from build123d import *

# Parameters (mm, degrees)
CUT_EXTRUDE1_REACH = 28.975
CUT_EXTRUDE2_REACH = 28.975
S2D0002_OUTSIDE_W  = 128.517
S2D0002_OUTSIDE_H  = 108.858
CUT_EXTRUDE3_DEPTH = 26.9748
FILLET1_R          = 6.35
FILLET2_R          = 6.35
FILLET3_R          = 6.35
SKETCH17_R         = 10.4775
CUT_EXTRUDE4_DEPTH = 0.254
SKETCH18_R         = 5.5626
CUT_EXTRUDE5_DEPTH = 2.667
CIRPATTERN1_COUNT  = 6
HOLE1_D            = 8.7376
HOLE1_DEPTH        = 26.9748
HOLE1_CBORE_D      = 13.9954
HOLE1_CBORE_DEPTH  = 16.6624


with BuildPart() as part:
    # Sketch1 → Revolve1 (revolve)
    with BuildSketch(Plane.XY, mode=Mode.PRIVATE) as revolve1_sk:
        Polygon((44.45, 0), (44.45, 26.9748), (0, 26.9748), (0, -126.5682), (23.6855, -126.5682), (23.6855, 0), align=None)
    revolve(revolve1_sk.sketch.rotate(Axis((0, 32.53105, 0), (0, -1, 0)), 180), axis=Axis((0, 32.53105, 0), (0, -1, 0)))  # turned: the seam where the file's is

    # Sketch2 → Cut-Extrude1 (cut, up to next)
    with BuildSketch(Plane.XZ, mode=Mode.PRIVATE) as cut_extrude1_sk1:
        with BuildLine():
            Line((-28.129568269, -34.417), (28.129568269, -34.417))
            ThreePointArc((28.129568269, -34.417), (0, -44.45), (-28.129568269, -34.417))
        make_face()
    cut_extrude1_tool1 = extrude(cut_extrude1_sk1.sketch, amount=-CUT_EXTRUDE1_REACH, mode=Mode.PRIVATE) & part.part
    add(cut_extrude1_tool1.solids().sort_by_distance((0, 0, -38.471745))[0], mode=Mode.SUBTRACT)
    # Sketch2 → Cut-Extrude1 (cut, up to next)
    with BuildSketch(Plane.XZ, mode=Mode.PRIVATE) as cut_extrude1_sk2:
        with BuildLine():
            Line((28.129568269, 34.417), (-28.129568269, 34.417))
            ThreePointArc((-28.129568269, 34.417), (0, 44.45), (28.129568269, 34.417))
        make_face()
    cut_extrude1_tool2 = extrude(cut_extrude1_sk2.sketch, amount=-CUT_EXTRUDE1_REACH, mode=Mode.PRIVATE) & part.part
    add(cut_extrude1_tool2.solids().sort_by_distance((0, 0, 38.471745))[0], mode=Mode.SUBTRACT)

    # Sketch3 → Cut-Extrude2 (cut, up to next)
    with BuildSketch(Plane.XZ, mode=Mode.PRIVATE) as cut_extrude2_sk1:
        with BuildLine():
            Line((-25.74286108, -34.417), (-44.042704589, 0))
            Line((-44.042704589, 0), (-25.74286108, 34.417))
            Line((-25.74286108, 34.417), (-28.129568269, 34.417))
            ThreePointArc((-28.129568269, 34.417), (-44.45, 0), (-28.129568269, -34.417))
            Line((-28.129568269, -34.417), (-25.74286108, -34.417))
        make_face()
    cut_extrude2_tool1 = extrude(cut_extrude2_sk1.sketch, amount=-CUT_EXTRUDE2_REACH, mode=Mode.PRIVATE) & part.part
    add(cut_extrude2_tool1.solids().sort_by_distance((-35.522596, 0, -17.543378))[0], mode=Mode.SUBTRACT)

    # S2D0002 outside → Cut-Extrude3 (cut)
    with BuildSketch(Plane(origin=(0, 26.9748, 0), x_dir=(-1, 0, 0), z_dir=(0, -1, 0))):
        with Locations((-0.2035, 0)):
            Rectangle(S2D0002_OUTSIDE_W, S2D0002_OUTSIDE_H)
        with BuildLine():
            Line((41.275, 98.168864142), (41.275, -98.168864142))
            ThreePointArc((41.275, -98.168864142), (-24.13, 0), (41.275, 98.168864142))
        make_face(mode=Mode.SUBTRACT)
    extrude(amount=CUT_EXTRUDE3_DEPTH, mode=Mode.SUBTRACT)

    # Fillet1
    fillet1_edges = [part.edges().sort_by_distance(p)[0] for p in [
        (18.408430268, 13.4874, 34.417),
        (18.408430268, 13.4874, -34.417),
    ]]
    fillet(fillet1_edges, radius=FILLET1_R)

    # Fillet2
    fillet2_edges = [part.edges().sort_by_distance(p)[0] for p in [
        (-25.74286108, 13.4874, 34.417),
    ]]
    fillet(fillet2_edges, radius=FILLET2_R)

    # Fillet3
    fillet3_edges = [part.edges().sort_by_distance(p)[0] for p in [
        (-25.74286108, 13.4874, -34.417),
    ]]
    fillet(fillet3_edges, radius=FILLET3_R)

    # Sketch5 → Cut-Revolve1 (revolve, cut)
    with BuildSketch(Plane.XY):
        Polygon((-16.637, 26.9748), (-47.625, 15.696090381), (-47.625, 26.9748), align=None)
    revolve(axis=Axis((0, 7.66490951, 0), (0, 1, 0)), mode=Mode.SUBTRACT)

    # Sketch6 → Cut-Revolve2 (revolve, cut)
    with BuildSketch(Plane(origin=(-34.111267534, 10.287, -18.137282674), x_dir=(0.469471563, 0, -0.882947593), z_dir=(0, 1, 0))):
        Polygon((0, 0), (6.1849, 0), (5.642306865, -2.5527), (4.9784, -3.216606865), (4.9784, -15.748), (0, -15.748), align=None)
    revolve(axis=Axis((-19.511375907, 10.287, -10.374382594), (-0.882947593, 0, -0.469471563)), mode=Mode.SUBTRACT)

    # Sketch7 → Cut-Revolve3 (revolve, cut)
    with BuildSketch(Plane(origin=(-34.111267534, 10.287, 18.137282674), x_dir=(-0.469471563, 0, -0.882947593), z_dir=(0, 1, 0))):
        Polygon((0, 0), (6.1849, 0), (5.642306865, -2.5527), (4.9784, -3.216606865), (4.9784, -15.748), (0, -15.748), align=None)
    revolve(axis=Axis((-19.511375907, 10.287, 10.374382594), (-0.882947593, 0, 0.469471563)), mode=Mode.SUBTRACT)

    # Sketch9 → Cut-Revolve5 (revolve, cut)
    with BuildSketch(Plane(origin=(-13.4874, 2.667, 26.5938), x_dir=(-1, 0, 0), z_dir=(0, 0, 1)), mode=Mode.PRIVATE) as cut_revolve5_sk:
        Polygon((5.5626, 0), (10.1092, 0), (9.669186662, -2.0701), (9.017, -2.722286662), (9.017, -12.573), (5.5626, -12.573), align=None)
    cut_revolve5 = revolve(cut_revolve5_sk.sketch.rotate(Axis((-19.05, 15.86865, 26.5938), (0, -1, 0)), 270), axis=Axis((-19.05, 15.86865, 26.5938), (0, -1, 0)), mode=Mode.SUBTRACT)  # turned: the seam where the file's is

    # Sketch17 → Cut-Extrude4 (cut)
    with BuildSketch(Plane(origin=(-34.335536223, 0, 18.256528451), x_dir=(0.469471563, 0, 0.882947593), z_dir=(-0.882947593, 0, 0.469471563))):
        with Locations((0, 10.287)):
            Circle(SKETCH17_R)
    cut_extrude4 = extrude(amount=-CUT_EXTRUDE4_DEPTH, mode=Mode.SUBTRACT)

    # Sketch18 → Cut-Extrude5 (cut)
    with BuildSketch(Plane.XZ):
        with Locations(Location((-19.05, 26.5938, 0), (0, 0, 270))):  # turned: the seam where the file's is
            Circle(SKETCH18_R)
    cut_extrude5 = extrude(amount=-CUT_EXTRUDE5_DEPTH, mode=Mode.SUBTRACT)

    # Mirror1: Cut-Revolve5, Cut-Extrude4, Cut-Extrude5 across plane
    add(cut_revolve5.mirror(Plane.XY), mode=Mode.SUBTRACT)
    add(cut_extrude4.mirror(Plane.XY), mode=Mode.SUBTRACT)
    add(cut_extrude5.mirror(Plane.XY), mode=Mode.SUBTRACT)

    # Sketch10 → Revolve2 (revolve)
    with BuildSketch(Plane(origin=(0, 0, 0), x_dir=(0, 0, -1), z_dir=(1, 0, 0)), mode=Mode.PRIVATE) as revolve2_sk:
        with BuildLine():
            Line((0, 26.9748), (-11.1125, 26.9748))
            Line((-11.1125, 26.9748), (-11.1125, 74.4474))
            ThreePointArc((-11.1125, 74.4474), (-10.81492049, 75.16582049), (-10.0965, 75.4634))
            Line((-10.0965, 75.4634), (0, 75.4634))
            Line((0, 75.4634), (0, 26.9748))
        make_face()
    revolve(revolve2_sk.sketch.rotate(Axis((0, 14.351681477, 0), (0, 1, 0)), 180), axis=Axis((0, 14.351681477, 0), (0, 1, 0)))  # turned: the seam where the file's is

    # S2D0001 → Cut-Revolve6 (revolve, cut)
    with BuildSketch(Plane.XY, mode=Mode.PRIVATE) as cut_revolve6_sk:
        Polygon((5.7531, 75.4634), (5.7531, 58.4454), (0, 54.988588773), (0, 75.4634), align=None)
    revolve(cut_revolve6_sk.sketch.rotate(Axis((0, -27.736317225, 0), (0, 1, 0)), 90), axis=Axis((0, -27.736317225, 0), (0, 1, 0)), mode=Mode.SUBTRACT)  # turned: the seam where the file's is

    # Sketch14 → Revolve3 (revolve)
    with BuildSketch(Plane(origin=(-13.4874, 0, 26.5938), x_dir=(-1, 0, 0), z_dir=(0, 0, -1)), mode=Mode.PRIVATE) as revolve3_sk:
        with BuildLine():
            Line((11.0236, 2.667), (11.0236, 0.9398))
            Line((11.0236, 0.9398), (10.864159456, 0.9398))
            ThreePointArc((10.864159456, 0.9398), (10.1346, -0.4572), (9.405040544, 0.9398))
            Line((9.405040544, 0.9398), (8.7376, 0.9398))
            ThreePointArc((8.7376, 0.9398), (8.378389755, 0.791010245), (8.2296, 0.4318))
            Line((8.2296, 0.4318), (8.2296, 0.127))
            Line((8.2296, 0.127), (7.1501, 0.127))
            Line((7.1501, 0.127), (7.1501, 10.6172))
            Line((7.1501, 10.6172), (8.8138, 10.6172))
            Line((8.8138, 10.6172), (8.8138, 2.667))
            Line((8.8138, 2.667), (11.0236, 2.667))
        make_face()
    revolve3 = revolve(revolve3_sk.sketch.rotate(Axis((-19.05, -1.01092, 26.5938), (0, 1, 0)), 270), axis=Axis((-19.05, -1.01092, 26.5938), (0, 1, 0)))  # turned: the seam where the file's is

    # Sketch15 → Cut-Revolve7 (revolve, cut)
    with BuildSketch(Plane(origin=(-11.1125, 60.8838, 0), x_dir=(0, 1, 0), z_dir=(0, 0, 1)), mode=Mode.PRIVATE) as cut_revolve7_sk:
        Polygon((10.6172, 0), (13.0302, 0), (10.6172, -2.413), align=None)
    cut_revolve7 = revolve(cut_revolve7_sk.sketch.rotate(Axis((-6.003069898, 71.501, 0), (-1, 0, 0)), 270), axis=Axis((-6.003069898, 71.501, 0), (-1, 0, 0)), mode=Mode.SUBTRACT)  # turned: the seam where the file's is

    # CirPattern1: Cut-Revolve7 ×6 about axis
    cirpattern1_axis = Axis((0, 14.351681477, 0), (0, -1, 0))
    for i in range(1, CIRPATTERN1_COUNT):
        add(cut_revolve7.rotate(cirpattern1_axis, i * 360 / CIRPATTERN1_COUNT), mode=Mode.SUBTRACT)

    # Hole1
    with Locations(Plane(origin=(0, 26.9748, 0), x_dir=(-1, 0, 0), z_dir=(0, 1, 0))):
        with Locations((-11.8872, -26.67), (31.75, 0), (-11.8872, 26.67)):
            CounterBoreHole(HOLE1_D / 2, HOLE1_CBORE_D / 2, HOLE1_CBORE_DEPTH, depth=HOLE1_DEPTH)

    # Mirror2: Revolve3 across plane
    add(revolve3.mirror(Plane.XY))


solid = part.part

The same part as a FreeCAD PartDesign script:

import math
import FreeCAD as App
import Part
import Sketcher
Q = App.Units.Quantity


def edges_at(feature, points):
    """Names of the edges that pass closest to the given points."""
    edges = feature.Shape.Edges
    near = lambda p: min(range(len(edges)), key=lambda i: edges[i].distToShape(Part.Vertex(*p))[0])
    return sorted({f"Edge{near(p) + 1}" for p in points})


def add_polygon(sketch, points):
    """Adds a closed chain of lines whose ends are joined by coincident constraints."""
    first, n = sketch.GeometryCount, len(points)
    for a, b in zip(points, points[1:] + points[:1]):
        sketch.addGeometry(Part.LineSegment(App.Vector(*a, 0), App.Vector(*b, 0)), False)
    for i in range(n):
        sketch.addConstraint(Sketcher.Constraint("Coincident", first + i, 2, first + (i + 1) % n, 1))

doc = App.newDocument("Part")
body = doc.addObject("PartDesign::Body", "Body")

# Sketch on XY plane
sketch1 = body.newObject("Sketcher::SketchObject", "Sketch")
sketch1.AttachmentSupport = (doc.getObject("XY_Plane"), [""])
sketch1.MapMode = "FlatFace"
add_polygon(sketch1, [(44, 0), (44, 27), (0, 27), (0, -127), (24, -127), (24, 0)])  # lines 0-5
sketch1.addConstraint([
    Sketcher.Constraint("Vertical", 0),
    Sketcher.Constraint("Horizontal", 1),
    Sketcher.Constraint("Vertical", 2),
    Sketcher.Constraint("Horizontal", 3),
    Sketcher.Constraint("Vertical", 4),
    Sketcher.Constraint("Horizontal", 5),
    Sketcher.Constraint("PointOnObject", 1, 2, -2),
    Sketcher.Constraint("PointOnObject", 4, 2, -1),
    Sketcher.Constraint("DistanceX", 1, 2, 1, 1, Q("1.75 in")),
    Sketcher.Constraint("DistanceY", 0, 1, 0, 2, Q("1.062 in")),
    Sketcher.Constraint("DistanceY", 2, 2, 2, 1, Q("6.045 in")),
    Sketcher.Constraint("DistanceX", 3, 1, 3, 2, Q("0.9325 in")),
])
revolution = body.newObject("PartDesign::Revolution", "Revolution")
revolution.Profile = sketch1
revolution.ReferenceAxis = (sketch1, ["V_Axis"])
revolution.Angle = 360

# Sketch on XZ plane
sketch2 = body.newObject("Sketcher::SketchObject", "Sketch001")
sketch2.AttachmentSupport = (doc.getObject("XZ_Plane"), [""])
sketch2.MapMode = "FlatFace"
sketch2.addGeometry([
    Part.LineSegment(App.Vector(28, -34, 0), App.Vector(-28, -34, 0)),
    Part.ArcOfCircle(Part.Circle(App.Vector(0, 0, 0), App.Vector(0, 0, 1), 44), math.radians(-129), math.radians(-51)),
], False)
sketch2.addConstraint([
    Sketcher.Constraint("Coincident", 0, 1, 1, 2),
    Sketcher.Constraint("Coincident", 1, 1, 0, 2),
    Sketcher.Constraint("Horizontal", 0),
    Sketcher.Constraint("Coincident", 1, 3, -1, 1),
    Sketcher.Constraint("Radius", 1, Q("1.75 in")),
    Sketcher.Constraint("DistanceY", 0, 1, -1, 1, Q("1.355 in")),
])
pocket1 = body.newObject("PartDesign::Pocket", "Pocket")
pocket1.Profile = sketch2
pocket1.Type = "UpToFirst"

# Sketch on XZ plane
sketch3 = body.newObject("Sketcher::SketchObject", "Sketch002")
sketch3.AttachmentSupport = (doc.getObject("XZ_Plane"), [""])
sketch3.MapMode = "FlatFace"
sketch3.addGeometry([
    Part.LineSegment(App.Vector(-28, 34, 0), App.Vector(28, 34, 0)),
    Part.ArcOfCircle(Part.Circle(App.Vector(0, 0, 0), App.Vector(0, 0, 1), 44), math.radians(51), math.radians(129)),
], False)
sketch3.addConstraint([
    Sketcher.Constraint("Coincident", 0, 1, 1, 2),
    Sketcher.Constraint("Coincident", 1, 1, 0, 2),
    Sketcher.Constraint("Horizontal", 0),
    Sketcher.Constraint("Coincident", 1, 3, -1, 1),
    Sketcher.Constraint("Radius", 1, Q("1.75 in")),
    Sketcher.Constraint("DistanceY", -1, 1, 0, 1, Q("1.355 in")),
])
pocket2 = body.newObject("PartDesign::Pocket", "Pocket001")
pocket2.Profile = sketch3
pocket2.Type = "UpToFirst"

# Sketch on XZ plane
sketch4 = body.newObject("Sketcher::SketchObject", "Sketch003")
sketch4.AttachmentSupport = (doc.getObject("XZ_Plane"), [""])
sketch4.MapMode = "FlatFace"
sketch4.addGeometry([
    Part.LineSegment(App.Vector(-25.7, -34.4, 0), App.Vector(-44, 0, 0)),  # 0
    Part.LineSegment(App.Vector(-44, 0, 0), App.Vector(-25.7, 34.4, 0)),  # 1
    Part.LineSegment(App.Vector(-25.7, 34.4, 0), App.Vector(-28.1, 34.4, 0)),  # 2
    Part.ArcOfCircle(Part.Circle(App.Vector(0, 0, 0), App.Vector(0, 0, 1), 44.5), math.radians(129), math.radians(231)),  # 3
    Part.LineSegment(App.Vector(-28.1, -34.4, 0), App.Vector(-25.7, -34.4, 0)),  # 4
], False)
sketch4.addConstraint([
    Sketcher.Constraint("Coincident", 0, 2, 1, 1),
    Sketcher.Constraint("Coincident", 1, 2, 2, 1),
    Sketcher.Constraint("Coincident", 2, 2, 3, 1),
    Sketcher.Constraint("Coincident", 3, 2, 4, 1),
    Sketcher.Constraint("Coincident", 4, 2, 0, 1),
    Sketcher.Constraint("Horizontal", 2),
    Sketcher.Constraint("Horizontal", 4),
    Sketcher.Constraint("Coincident", 3, 3, -1, 1),
    Sketcher.Constraint("Symmetric", 1, 2, 4, 2, -1),
    Sketcher.Constraint("PointOnObject", 0, 2, -1),
    Sketcher.Constraint("Radius", 3, Q("1.75 in")),
    Sketcher.Constraint("Angle", 0, Q("118 deg")),
    Sketcher.Constraint("DistanceY", 3, 2, 2, 2, Q("2.71 in")),
    Sketcher.Constraint("DistanceX", 2, 2, 2, 1, 2.386707),
])
pocket3 = body.newObject("PartDesign::Pocket", "Pocket002")
pocket3.Profile = sketch4
pocket3.Type = "UpToFirst"

# Sketch on XZ plane
sketch5 = body.newObject("Sketcher::SketchObject", "Sketch004")
sketch5.AttachmentSupport = (doc.getObject("XZ_Plane"), [""])
sketch5.MapMode = "FlatFace"
sketch5.AttachmentOffset = App.Placement(App.Vector(0, 0, -1.062 * 25.4), App.Rotation())
sketch5.addGeometry(Part.LineSegment(App.Vector(64, -54, 0), App.Vector(64, 54, 0)), False)  # 0
sketch5.addGeometry(Part.LineSegment(App.Vector(64, 54, 0), App.Vector(9, 54, 0)), False)  # 1
sketch5.addGeometry(Part.ArcOfCircle(Part.Circle(App.Vector(-82, 0, 0), App.Vector(0, 0, 1), 106), math.radians(-31), math.radians(31)), False)  # 2
sketch5.addGeometry(Part.LineSegment(App.Vector(9, -54, 0), App.Vector(64, -54, 0)), False)  # 3
add_polygon(sketch5, [(-41, -54), (-41, 54), (-64, 54), (-64, -54)])  # lines 4-7
sketch5.addConstraint([
    Sketcher.Constraint("Coincident", 0, 2, 1, 1),
    Sketcher.Constraint("Coincident", 1, 2, 2, 2),
    Sketcher.Constraint("Coincident", 2, 1, 3, 1),
    Sketcher.Constraint("Coincident", 3, 2, 0, 1),
    Sketcher.Constraint("Vertical", 0),
    Sketcher.Constraint("Horizontal", 1),
    Sketcher.Constraint("Horizontal", 3),
    Sketcher.Constraint("Vertical", 4),
    Sketcher.Constraint("Horizontal", 5),
    Sketcher.Constraint("Vertical", 6),
    Sketcher.Constraint("Horizontal", 7),
    Sketcher.Constraint("Symmetric", 1, 2, 2, 1, -1),
    Sketcher.Constraint("Horizontal", 1, 2, 4, 2),
    Sketcher.Constraint("Horizontal", 3, 2, 6, 2),
    Sketcher.Constraint("Radius", 2, Q("4.188 in")),
    Sketcher.Constraint("DistanceX", 2, 3, -1, 1, Q("3.238 in")),
    Sketcher.Constraint("DistanceX", 4, 2, -1, 1, Q("1.625 in")),
    Sketcher.Constraint("DistanceX", 5, 2, 5, 1, 22.78),
    Sketcher.Constraint("DistanceY", 0, 1, 0, 2, 108.858),
    Sketcher.Constraint("DistanceX", -1, 1, 0, 2, 64.462),
])
pocket4 = body.newObject("PartDesign::Pocket", "Pocket003")
pocket4.Profile = sketch5
pocket4.Length = Q("1.062 in")
pocket4.Reversed = True
doc.recompute()

fillet = body.newObject("PartDesign::Fillet", "Fillet")
fillet.Base = (pocket4, edges_at(pocket4, [(18.408, 13.487, 34.417), (18.408, 13.487, -34.417)]))
fillet.Radius = Q("0.25 in")
doc.recompute()

fillet2 = body.newObject("PartDesign::Fillet", "Fillet001")
fillet2.Base = (fillet, edges_at(fillet, [(-25.743, 13.487, 34.417)]))
fillet2.Radius = Q("0.25 in")
doc.recompute()

fillet3 = body.newObject("PartDesign::Fillet", "Fillet002")
fillet3.Base = (fillet2, edges_at(fillet2, [(-25.743, 13.487, -34.417)]))
fillet3.Radius = Q("0.25 in")

# Sketch on XY plane
sketch6 = body.newObject("Sketcher::SketchObject", "Sketch005")
sketch6.AttachmentSupport = (doc.getObject("XY_Plane"), [""])
sketch6.MapMode = "FlatFace"
add_polygon(sketch6, [(-48, 16), (-17, 27), (-48, 27)])  # lines 0-2
sketch6.addConstraint([
    Sketcher.Constraint("Horizontal", 1),
    Sketcher.Constraint("Vertical", 2),
    Sketcher.Constraint("Angle", 0, Q("20 deg")),
    Sketcher.Constraint("DistanceX", 1, 2, 1, 1, Q("1.22 in")),
    Sketcher.Constraint("DistanceX", 0, 2, -1, 1, Q("0.655 in")),
    Sketcher.Constraint("DistanceY", -1, 1, 0, 2, Q("1.062 in")),
])
groove = body.newObject("PartDesign::Groove", "Groove")
groove.Profile = sketch6
groove.ReferenceAxis = (sketch6, ["V_Axis"])
groove.Angle = 360

# Sketch on XZ plane
sketch7 = body.newObject("Sketcher::SketchObject", "Sketch006")
sketch7.AttachmentSupport = (doc.getObject("XZ_Plane"), [""])
sketch7.MapMode = "FlatFace"
sketch7.AttachmentOffset = App.Placement(App.Vector(0, 0, -0.405 * 25.4), App.Rotation())
add_polygon(sketch7, [(-31.2, -23.6), (-34.1, -18.1), (-20.2, -10.7), (-17.9, -15.1), (-28.9, -21), (-29.2, -21.9)])  # lines 0-5
sketch7.addGeometry(Part.LineSegment(App.Vector(-20.2, -10.7, 0), App.Vector(-34.1, -18.1, 0)), True)  # axis
sketch7.addConstraint([
    Sketcher.Constraint("Coincident", 6, 1, 1, 2),
    Sketcher.Constraint("Coincident", 6, 2, 0, 2),
    Sketcher.Constraint("Perpendicular", 0, 1),
    Sketcher.Constraint("Perpendicular", 1, 2),
    Sketcher.Constraint("Perpendicular", 2, 3),
    Sketcher.Constraint("Angle", 0, Q("118 deg")),
    Sketcher.Constraint("Angle", 4, Q("-107 deg")),
    Sketcher.Constraint("Angle", 5, Q("-140 deg")),
    Sketcher.Constraint("Distance", 1, Q("0.62 in")),
    Sketcher.Constraint("Distance", 2, Q("0.196 in")),
    Sketcher.Constraint("Distance", 0, Q("0.2435 in")),
    Sketcher.Constraint("DistanceY", 3, 2, 1, 2, 10.278799),
    Sketcher.Constraint("DistanceX", 1, 2, -1, 1, 20.206609),
    Sketcher.Constraint("DistanceY", 2, 2, -1, 1, 15.139711),
])
groove2 = body.newObject("PartDesign::Groove", "Groove001")
groove2.Profile = sketch7
groove2.ReferenceAxis = (sketch7, ["Axis0"])
groove2.Angle = 360

# Sketch on XZ plane
sketch8 = body.newObject("Sketcher::SketchObject", "Sketch007")
sketch8.AttachmentSupport = (doc.getObject("XZ_Plane"), [""])
sketch8.MapMode = "FlatFace"
sketch8.AttachmentOffset = App.Placement(App.Vector(0, 0, -0.405 * 25.4), App.Rotation())
add_polygon(sketch8, [(-37, 12.7), (-34.1, 18.1), (-20.2, 10.7), (-22.5, 6.3), (-33.6, 12.2), (-34.5, 12)])  # lines 0-5
sketch8.addGeometry(Part.LineSegment(App.Vector(-20.2, 10.7, 0), App.Vector(-34.1, 18.1, 0)), True)  # axis
sketch8.addConstraint([
    Sketcher.Constraint("Coincident", 6, 1, 1, 2),
    Sketcher.Constraint("Coincident", 6, 2, 0, 2),
    Sketcher.Constraint("Perpendicular", 0, 1),
    Sketcher.Constraint("Perpendicular", 1, 2),
    Sketcher.Constraint("Perpendicular", 2, 3),
    Sketcher.Constraint("Angle", 0, Q("62 deg")),
    Sketcher.Constraint("Angle", 4, Q("-163 deg")),
    Sketcher.Constraint("Angle", 5, Q("164 deg")),
    Sketcher.Constraint("Distance", 1, Q("0.62 in")),
    Sketcher.Constraint("Distance", 2, Q("0.196 in")),
    Sketcher.Constraint("Distance", 0, Q("0.2435 in")),
    Sketcher.Constraint("DistanceY", -1, 1, 4, 2, 11.957001),
    Sketcher.Constraint("Distance", 5, 2.609729),
    Sketcher.Constraint("DistanceX", 1, 2, -1, 1, 20.206609),
])
groove3 = body.newObject("PartDesign::Groove", "Groove002")
groove3.Profile = sketch8
groove3.ReferenceAxis = (sketch8, ["Axis0"])
groove3.Angle = 360

# Sketch on XY plane
sketch9 = body.newObject("Sketcher::SketchObject", "Sketch008")
sketch9.AttachmentSupport = (doc.getObject("XY_Plane"), [""])
sketch9.MapMode = "FlatFace"
sketch9.AttachmentOffset = App.Placement(App.Vector(0, 0, 1.047 * 25.4), App.Rotation())
add_polygon(sketch9, [(-23.6, 2.7), (-19.1, 2.7), (-19.1, 15.2), (-22.5, 15.2), (-22.5, 5.4), (-23.2, 4.7)])  # lines 0-5
sketch9.addGeometry(Part.LineSegment(App.Vector(-19.1, 15.2, 0), App.Vector(-19.1, 2.7, 0)), True)  # axis
sketch9.addConstraint([
    Sketcher.Constraint("Horizontal", 0),
    Sketcher.Constraint("Vertical", 1),
    Sketcher.Constraint("Horizontal", 2),
    Sketcher.Constraint("Vertical", 3),
    Sketcher.Constraint("Vertical", 6),
    Sketcher.Constraint("Coincident", 6, 1, 1, 2),
    Sketcher.Constraint("Horizontal", 5, 2, 6, 2),
    Sketcher.Constraint("Angle", 4, Q("-135 deg")),
    Sketcher.Constraint("Angle", 5, Q("-102 deg")),
    Sketcher.Constraint("DistanceY", -1, 1, 1, 2, Q("0.6 in")),
    Sketcher.Constraint("DistanceX", 0, 1, 0, 2, Q("0.179 in")),
    Sketcher.Constraint("DistanceX", 2, 2, 2, 1, Q("0.136 in")),
    Sketcher.Constraint("DistanceY", 1, 1, 1, 2, Q("0.495 in")),
    Sketcher.Constraint("DistanceX", 0, 2, -1, 1, Q("0.75 in")),
    Sketcher.Constraint("DistanceY", -1, 1, 4, 2, Q("0.1865 in")),
])
groove4 = body.newObject("PartDesign::Groove", "Groove003")
groove4.Profile = sketch9
groove4.ReferenceAxis = (sketch9, ["Axis0"])
groove4.Angle = 360

# Sketch on an angled plane
sketch10 = body.newObject("Sketcher::SketchObject", "Sketch009")
sketch10.Placement = App.Placement(App.Vector(-34.335536, 0, 18.256528), App.Rotation(App.Vector(0.469471563, 0, 0.882947593), App.Vector(0, 1, 0), App.Vector(-0.882947593, 0, 0.469471563), "ZXY"))
sketch10.addGeometry(Part.Circle(App.Vector(0, 10, 0), App.Vector(0, 0, 1), 10), False)
sketch10.addConstraint([
    Sketcher.Constraint("PointOnObject", 0, 3, -2),
    Sketcher.Constraint("Diameter", 0, Q("0.825 in")),
    Sketcher.Constraint("DistanceY", -1, 1, 0, 3, Q("0.405 in")),
])
pocket5 = body.newObject("PartDesign::Pocket", "Pocket004")
pocket5.Profile = sketch10
pocket5.Length = Q("0.01 in")

# Sketch on XZ plane
sketch11 = body.newObject("Sketcher::SketchObject", "Sketch010")
sketch11.AttachmentSupport = (doc.getObject("XZ_Plane"), [""])
sketch11.MapMode = "FlatFace"
sketch11.addGeometry(Part.Circle(App.Vector(-19, 27, 0), App.Vector(0, 0, 1), 6), False)
sketch11.addConstraint([
    Sketcher.Constraint("Diameter", 0, Q("0.438 in")),
    Sketcher.Constraint("DistanceX", 0, 3, -1, 1, Q("0.75 in")),
    Sketcher.Constraint("DistanceY", -1, 1, 0, 3, Q("1.047 in")),
])
pocket6 = body.newObject("PartDesign::Pocket", "Pocket005")
pocket6.Profile = sketch11
pocket6.Length = Q("0.105 in")
doc.recompute()

mirrored = body.newObject("PartDesign::Mirrored", "Mirrored")
mirrored.Originals = [groove4, pocket5, pocket6]
mirrored.MirrorPlane = (doc.getObject("XY_Plane"), [""])
body.Tip = mirrored

# Sketch on YZ plane
sketch12 = body.newObject("Sketcher::SketchObject", "Sketch011")
sketch12.AttachmentSupport = (doc.getObject("YZ_Plane"), [""])
sketch12.MapMode = "FlatFace"
sketch12.addGeometry([
    Part.LineSegment(App.Vector(27, 11.1, 0), App.Vector(27, 0, 0)),  # 0
    Part.LineSegment(App.Vector(27, 0, 0), App.Vector(75.5, 0, 0)),  # 1
    Part.LineSegment(App.Vector(75.5, 0, 0), App.Vector(75.5, 10.1, 0)),  # 2
    Part.ArcOfCircle(Part.Circle(App.Vector(74.4, 10.1, 0), App.Vector(0, 0, 1), 1), math.radians(0), math.radians(90)),  # 3
    Part.LineSegment(App.Vector(74.4, 11.1, 0), App.Vector(27, 11.1, 0)),  # 4
], False)
sketch12.addConstraint([
    Sketcher.Constraint("Coincident", 0, 2, 1, 1),
    Sketcher.Constraint("Coincident", 1, 2, 2, 1),
    Sketcher.Constraint("Tangent", 2, 2, 3, 1),
    Sketcher.Constraint("Tangent", 3, 2, 4, 1),
    Sketcher.Constraint("Coincident", 4, 2, 0, 1),
    Sketcher.Constraint("Vertical", 0),
    Sketcher.Constraint("Horizontal", 1),
    Sketcher.Constraint("Vertical", 2),
    Sketcher.Constraint("Horizontal", 4),
    Sketcher.Constraint("PointOnObject", 0, 2, -1),
    Sketcher.Constraint("Radius", 3, Q("0.04 in")),
    Sketcher.Constraint("DistanceX", 1, 1, 1, 2, Q("1.909 in")),
    Sketcher.Constraint("DistanceY", 0, 2, 0, 1, Q("0.4375 in")),
    Sketcher.Constraint("DistanceX", -1, 1, 3, 3, Q("2.931 in")),
])
revolution2 = body.newObject("PartDesign::Revolution", "Revolution001")
revolution2.Profile = sketch12
revolution2.ReferenceAxis = (sketch12, ["H_Axis"])
revolution2.Angle = 360

# Sketch on XY plane
sketch13 = body.newObject("Sketcher::SketchObject", "Sketch012")
sketch13.AttachmentSupport = (doc.getObject("XY_Plane"), [""])
sketch13.MapMode = "FlatFace"
add_polygon(sketch13, [(6, 58), (6, 75), (0, 75), (0, 55)])  # lines 0-3
sketch13.addConstraint([
    Sketcher.Constraint("Vertical", 0),
    Sketcher.Constraint("Horizontal", 1),
    Sketcher.Constraint("Vertical", 2),
    Sketcher.Constraint("PointOnObject", 1, 2, -2),
    Sketcher.Constraint("Angle", 3, Q("31 deg")),
    Sketcher.Constraint("DistanceY", 0, 1, 0, 2, Q("0.67 in")),
    Sketcher.Constraint("DistanceX", 1, 2, 1, 1, Q("0.2265 in")),
    Sketcher.Constraint("DistanceY", -1, 1, 0, 2, Q("2.971 in")),
])
groove5 = body.newObject("PartDesign::Groove", "Groove004")
groove5.Profile = sketch13
groove5.ReferenceAxis = (sketch13, ["V_Axis"])
groove5.Angle = 360

# Sketch on XY plane
sketch14 = body.newObject("Sketcher::SketchObject", "Sketch013")
sketch14.AttachmentSupport = (doc.getObject("XY_Plane"), [""])
sketch14.MapMode = "FlatFace"
sketch14.AttachmentOffset = App.Placement(App.Vector(0, 0, 1.047 * 25.4), App.Rotation())
sketch14.addGeometry([
    Part.LineSegment(App.Vector(-24.51, 0.94, 0), App.Vector(-24.51, 2.67, 0)),  # 0
    Part.LineSegment(App.Vector(-24.51, 2.67, 0), App.Vector(-22.3, 2.67, 0)),  # 1
    Part.LineSegment(App.Vector(-22.3, 2.67, 0), App.Vector(-22.3, 10.62, 0)),  # 2
    Part.LineSegment(App.Vector(-22.3, 10.62, 0), App.Vector(-20.64, 10.62, 0)),  # 3
    Part.LineSegment(App.Vector(-20.64, 10.62, 0), App.Vector(-20.64, 0.13, 0)),  # 4
    Part.LineSegment(App.Vector(-20.64, 0.13, 0), App.Vector(-21.72, 0.13, 0)),  # 5
    Part.LineSegment(App.Vector(-21.72, 0.13, 0), App.Vector(-21.72, 0.43, 0)),  # 6
    Part.ArcOfCircle(Part.Circle(App.Vector(-22.22, 0.43, 0), App.Vector(0, 0, 1), 0.51), math.radians(0), math.radians(90)),  # 7
    Part.LineSegment(App.Vector(-22.23, 0.94, 0), App.Vector(-22.89, 0.94, 0)),  # 8
    Part.ArcOfCircle(Part.Circle(App.Vector(-23.62, 0.43, 0), App.Vector(0, 0, 1), 0.89), math.radians(145), math.radians(395)),  # 9
    Part.LineSegment(App.Vector(-24.35, 0.94, 0), App.Vector(-24.51, 0.94, 0)),  # 10
], False)
sketch14.addGeometry(Part.LineSegment(App.Vector(-19.05, 0.13, 0), App.Vector(-19.05, 10.62, 0)), True)  # axis
sketch14.addConstraint([
    Sketcher.Constraint("Coincident", 0, 2, 1, 1),
    Sketcher.Constraint("Coincident", 1, 2, 2, 1),
    Sketcher.Constraint("Coincident", 2, 2, 3, 1),
    Sketcher.Constraint("Coincident", 3, 2, 4, 1),
    Sketcher.Constraint("Coincident", 4, 2, 5, 1),
    Sketcher.Constraint("Coincident", 5, 2, 6, 1),
    Sketcher.Constraint("Tangent", 6, 2, 7, 1),
    Sketcher.Constraint("Tangent", 7, 2, 8, 1),
    Sketcher.Constraint("Coincident", 8, 2, 9, 2),
    Sketcher.Constraint("Coincident", 9, 1, 10, 1),
    Sketcher.Constraint("Coincident", 10, 2, 0, 1),
    Sketcher.Constraint("Vertical", 0),
    Sketcher.Constraint("Horizontal", 1),
    Sketcher.Constraint("Vertical", 2),
    Sketcher.Constraint("Horizontal", 3),
    Sketcher.Constraint("Vertical", 4),
    Sketcher.Constraint("Horizontal", 5),
    Sketcher.Constraint("Vertical", 6),
    Sketcher.Constraint("Horizontal", 8),
    Sketcher.Constraint("Horizontal", 10),
    Sketcher.Constraint("Vertical", 11),
    Sketcher.Constraint("Horizontal", 7, 3, 9, 3),
    Sketcher.Constraint("Horizontal", 8, 2, 9, 1),
    Sketcher.Constraint("Horizontal", 5, 2, 11, 1),
    Sketcher.Constraint("Horizontal", 3, 2, 11, 2),
    Sketcher.Constraint("Radius", 7, Q("0.02 in")),
    Sketcher.Constraint("Radius", 9, Q("0.035 in")),
    Sketcher.Constraint("DistanceY", 4, 2, 1, 2, Q("0.1 in")),
    Sketcher.Constraint("DistanceX", 1, 1, 1, 2, Q("0.087 in")),
    Sketcher.Constraint("DistanceY", 0, 1, 0, 2, Q("0.068 in")),
    Sketcher.Constraint("DistanceY", 2, 1, 2, 2, Q("0.313 in")),
    Sketcher.Constraint("DistanceX", 9, 3, -1, 1, Q("0.93 in")),
    Sketcher.Constraint("DistanceX", 11, 1, -1, 1, Q("0.75 in")),
    Sketcher.Constraint("DistanceX", 0, 2, 7, 3, Q("0.09 in")),
    Sketcher.Constraint("DistanceX", 3, 1, 3, 2, Q("0.0655 in")),
    Sketcher.Constraint("DistanceX", 7, 3, -1, 1, Q("0.875 in")),
    Sketcher.Constraint("DistanceY", -1, 1, 7, 3, Q("0.017 in")),
])
revolution3 = body.newObject("PartDesign::Revolution", "Revolution002")
revolution3.Profile = sketch14
revolution3.ReferenceAxis = (sketch14, ["Axis0"])
revolution3.Angle = 360

# Sketch on XY plane
sketch15 = body.newObject("Sketcher::SketchObject", "Sketch014")
sketch15.AttachmentSupport = (doc.getObject("XY_Plane"), [""])
sketch15.MapMode = "FlatFace"
add_polygon(sketch15, [(-11.1, 73.9), (-11.1, 71.5), (-8.7, 71.5)])  # lines 0-2
sketch15.addGeometry(Part.LineSegment(App.Vector(-8.7, 71.5, 0), App.Vector(-11.1, 71.5, 0)), True)  # axis
sketch15.addConstraint([
    Sketcher.Constraint("Vertical", 0),
    Sketcher.Constraint("Horizontal", 1),
    Sketcher.Constraint("Horizontal", 3),
    Sketcher.Constraint("Coincident", 3, 1, 1, 2),
    Sketcher.Constraint("Vertical", 2, 2, 3, 2),
    Sketcher.Constraint("Equal", 3, 0),
    Sketcher.Constraint("DistanceX", 1, 1, 1, 2, Q("0.095 in")),
    Sketcher.Constraint("DistanceY", -1, 1, 2, 2, Q("2.91 in")),
    Sketcher.Constraint("DistanceX", 0, 2, -1, 1, Q("0.4375 in")),
])
groove6 = body.newObject("PartDesign::Groove", "Groove005")
groove6.Profile = sketch15
groove6.ReferenceAxis = (sketch15, ["Axis0"])
groove6.Angle = 360
doc.recompute()

polarpattern = body.newObject("PartDesign::PolarPattern", "PolarPattern")
polarpattern.Originals = [groove6]
polarpattern.Axis = (doc.getObject("Y_Axis"), [""])
polarpattern.Angle = 360
polarpattern.Occurrences = 6
body.Tip = polarpattern

# Sketch on XZ plane
sketch16 = body.newObject("Sketcher::SketchObject", "Sketch015")
sketch16.AttachmentSupport = (doc.getObject("XZ_Plane"), [""])
sketch16.MapMode = "FlatFace"
sketch16.AttachmentOffset = App.Placement(App.Vector(0, 0, -1.062 * 25.4), App.Rotation())
sketch16.addGeometry([
    Part.Circle(App.Vector(11.9, -26.7, 0), App.Vector(0, 0, 1), 4.4),
    Part.Circle(App.Vector(-31.8, 0, 0), App.Vector(0, 0, 1), 4.4),
    Part.Circle(App.Vector(11.9, 26.7, 0), App.Vector(0, 0, 1), 4.4),
], False)
sketch16.addConstraint([
    Sketcher.Constraint("Equal", 0, 1),
    Sketcher.Constraint("Equal", 1, 2),
    Sketcher.Constraint("Symmetric", 0, 3, 2, 3, -1),
    Sketcher.Constraint("PointOnObject", 1, 3, -1),
    Sketcher.Constraint("Diameter", 0, Q("0.344 in")),
    Sketcher.Constraint("DistanceY", 0, 3, 2, 3, Q("2.1 in")),
    Sketcher.Constraint("DistanceX", 1, 3, -1, 1, Q("1.25 in")),
    Sketcher.Constraint("DistanceX", -1, 1, 0, 3, Q("0.468 in")),
])
doc.recompute()
hole = body.newObject("PartDesign::Hole", "Hole")
hole.Profile = sketch16
hole.ThreadType = "None"
hole.Diameter = Q("0.344 in")
hole.DepthType = "Dimension"
hole.Depth = Q("1.062 in")
hole.DrillPoint = "Flat"
hole.HoleCutType = "Counterbore"
hole.HoleCutDiameter = Q("0.551 in")
hole.HoleCutDepth = Q("0.656 in")
hole.Reversed = True
doc.recompute()

mirrored2 = body.newObject("PartDesign::Mirrored", "Mirrored001")
mirrored2.Originals = [revolution3]
mirrored2.MirrorPlane = (doc.getObject("XY_Plane"), [""])
body.Tip = mirrored2

doc.recompute()
